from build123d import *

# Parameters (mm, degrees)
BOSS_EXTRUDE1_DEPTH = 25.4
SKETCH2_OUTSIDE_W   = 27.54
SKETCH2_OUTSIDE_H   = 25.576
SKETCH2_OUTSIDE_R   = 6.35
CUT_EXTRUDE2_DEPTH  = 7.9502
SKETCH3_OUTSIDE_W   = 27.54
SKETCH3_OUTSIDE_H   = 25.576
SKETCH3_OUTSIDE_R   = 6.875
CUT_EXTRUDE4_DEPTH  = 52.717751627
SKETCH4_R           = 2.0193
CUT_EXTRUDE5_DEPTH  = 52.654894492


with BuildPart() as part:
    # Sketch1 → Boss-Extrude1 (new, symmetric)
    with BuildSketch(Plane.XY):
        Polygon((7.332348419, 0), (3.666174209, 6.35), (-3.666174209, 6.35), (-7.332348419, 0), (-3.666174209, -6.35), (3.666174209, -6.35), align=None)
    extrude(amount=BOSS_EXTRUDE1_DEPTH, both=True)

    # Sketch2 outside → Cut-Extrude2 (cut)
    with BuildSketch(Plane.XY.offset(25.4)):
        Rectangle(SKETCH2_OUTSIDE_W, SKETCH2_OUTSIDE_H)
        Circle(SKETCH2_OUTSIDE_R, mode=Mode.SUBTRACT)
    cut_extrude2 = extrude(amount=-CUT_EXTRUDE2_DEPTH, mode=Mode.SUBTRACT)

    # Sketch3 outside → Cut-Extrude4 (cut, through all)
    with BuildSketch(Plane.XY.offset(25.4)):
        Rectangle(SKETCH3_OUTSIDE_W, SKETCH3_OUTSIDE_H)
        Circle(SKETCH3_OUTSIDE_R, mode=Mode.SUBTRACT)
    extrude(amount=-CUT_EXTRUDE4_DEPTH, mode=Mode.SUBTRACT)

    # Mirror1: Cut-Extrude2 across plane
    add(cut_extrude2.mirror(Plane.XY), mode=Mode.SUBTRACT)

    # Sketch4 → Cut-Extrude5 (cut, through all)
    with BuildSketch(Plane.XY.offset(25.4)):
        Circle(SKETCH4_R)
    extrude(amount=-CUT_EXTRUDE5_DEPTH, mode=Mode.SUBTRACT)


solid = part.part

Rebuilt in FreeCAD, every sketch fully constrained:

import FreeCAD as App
import Part
import Sketcher

V = App.Vector
Q = App.Units.Quantity

doc = App.newDocument("Part")
body = doc.addObject("PartDesign::Body", "Body")

# Sketch on XY plane
sketch1 = body.newObject("Sketcher::SketchObject", "Sketch")
sketch1.AttachmentSupport = (doc.getObject("XY_Plane"), [""])
sketch1.MapMode = "FlatFace"
sketch1.addGeometry([
    Part.LineSegment(V(7.332348, 0, 0), V(3.666174, 6.35, 0)),  # 0
    Part.LineSegment(V(3.666174, 6.35, 0), V(-3.666174, 6.35, 0)),  # 1
    Part.LineSegment(V(-3.666174, 6.35, 0), V(-7.332348, 0, 0)),  # 2
    Part.LineSegment(V(-7.332348, 0, 0), V(-3.666174, -6.35, 0)),  # 3
    Part.LineSegment(V(-3.666174, -6.35, 0), V(3.666174, -6.35, 0)),  # 4
    Part.LineSegment(V(3.666174, -6.35, 0), V(7.332348, 0, 0)),  # 5
], False)
sketch1.addConstraint([
    Sketcher.Constraint("Coincident", 0, 2, 1, 1),
    Sketcher.Constraint("Coincident", 1, 2, 2, 1),
    Sketcher.Constraint("Coincident", 2, 2, 3, 1),
    Sketcher.Constraint("Coincident", 3, 2, 4, 1),
    Sketcher.Constraint("Coincident", 4, 2, 5, 1),
    Sketcher.Constraint("Coincident", 5, 2, 0, 1),
    Sketcher.Constraint("Horizontal", 1),
    Sketcher.Constraint("Horizontal", 4),
    Sketcher.Constraint("Symmetric", 0, 2, 3, 2, -1, 1),
    Sketcher.Constraint("Symmetric", 2, 2, 5, 2, -1, 1),
    Sketcher.Constraint("PointOnObject", 2, 2, -1),
    Sketcher.Constraint("Parallel", 2, 5),
    Sketcher.Constraint("Vertical", 1, 2, 3, 2),
    Sketcher.Constraint("Angle", 0, Q("120 deg")),
    Sketcher.Constraint("DistanceY", 3, 2, 1, 2, Q("0.5 in")),
    Sketcher.Constraint("DistanceX", 1, 2, 1, 1, 7.332348),
])
pad1 = body.newObject("PartDesign::Pad", "Pad")
pad1.Profile = sketch1
pad1.Length = Q("2 in")
pad1.Midplane = True

# Sketch on XY plane
sketch2 = body.newObject("Sketcher::SketchObject", "Sketch001")
sketch2.AttachmentSupport = (doc.getObject("XY_Plane"), [""])
sketch2.MapMode = "FlatFace"
sketch2.AttachmentOffset = App.Placement(V(0, 0, 1 * 25.4), App.Rotation())
sketch2.addGeometry([
    Part.LineSegment(V(-13.77, 12.788, 0), V(-13.77, -12.788, 0)),  # 0
    Part.LineSegment(V(-13.77, -12.788, 0), V(13.77, -12.788, 0)),  # 1
    Part.LineSegment(V(13.77, -12.788, 0), V(13.77, 12.788, 0)),  # 2
    Part.LineSegment(V(13.77, 12.788, 0), V(-13.77, 12.788, 0)),  # 3
    Part.Circle(V(0, 0, 0), V(0, 0, 1), 6.35),  # 4
], False)
sketch2.addConstraint([
    Sketcher.Constraint("Coincident", 0, 2, 1, 1),
    Sketcher.Constraint("Coincident", 1, 2, 2, 1),
    Sketcher.Constraint("Coincident", 2, 2, 3, 1),
    Sketcher.Constraint("Coincident", 3, 2, 0, 1),
    Sketcher.Constraint("Vertical", 0),
    Sketcher.Constraint("Horizontal", 1),
    Sketcher.Constraint("Vertical", 2),
    Sketcher.Constraint("Horizontal", 3),
    Sketcher.Constraint("Coincident", 4, 3, -1, 1),
    Sketcher.Constraint("Symmetric", 0, 2, 2, 2, -1, 1),
    Sketcher.Constraint("Diameter", 4, Q("0.5 in")),
    Sketcher.Constraint("DistanceX", 1, 1, 1, 2, 27.54),
    Sketcher.Constraint("DistanceY", 0, 2, 0, 1, 25.576),
])
pocket1 = body.newObject("PartDesign::Pocket", "Pocket")
pocket1.Profile = sketch2
pocket1.Length = Q("0.313 in")

# Sketch on XY plane
sketch3 = body.newObject("Sketcher::SketchObject", "Sketch002")
sketch3.AttachmentSupport = (doc.getObject("XY_Plane"), [""])
sketch3.MapMode = "FlatFace"
sketch3.AttachmentOffset = App.Placement(V(0, 0, 1 * 25.4), App.Rotation())
sketch3.addGeometry([
    Part.LineSegment(V(-13.77, 12.788, 0), V(-13.77, -12.788, 0)),  # 0
    Part.LineSegment(V(-13.77, -12.788, 0), V(13.77, -12.788, 0)),  # 1
    Part.LineSegment(V(13.77, -12.788, 0), V(13.77, 12.788, 0)),  # 2
    Part.LineSegment(V(13.77, 12.788, 0), V(-13.77, 12.788, 0)),  # 3
    Part.Circle(V(0, 0, 0), V(0, 0, 1), 6.875),  # 4
], False)
sketch3.addConstraint([
    Sketcher.Constraint("Coincident", 0, 2, 1, 1),
    Sketcher.Constraint("Coincident", 1, 2, 2, 1),
    Sketcher.Constraint("Coincident", 2, 2, 3, 1),
    Sketcher.Constraint("Coincident", 3, 2, 0, 1),
    Sketcher.Constraint("Vertical", 0),
    Sketcher.Constraint("Horizontal", 1),
    Sketcher.Constraint("Vertical", 2),
    Sketcher.Constraint("Horizontal", 3),
    Sketcher.Constraint("Coincident", 4, 3, -1, 1),
    Sketcher.Constraint("Symmetric", 0, 2, 2, 2, -1, 1),
    Sketcher.Constraint("Diameter", 4, 13.75),
    Sketcher.Constraint("DistanceX", 1, 1, 1, 2, 27.54),
    Sketcher.Constraint("DistanceY", 0, 2, 0, 1, 25.576),
])
pocket2 = body.newObject("PartDesign::Pocket", "Pocket001")
pocket2.Profile = sketch3
pocket2.Type = "ThroughAll"
doc.recompute()

mirrored = body.newObject("PartDesign::Mirrored", "Mirrored")
mirrored.Originals = [pocket1]
mirrored.MirrorPlane = (doc.getObject("XY_Plane"), [""])
body.Tip = mirrored

# Sketch on XY plane
sketch4 = body.newObject("Sketcher::SketchObject", "Sketch003")
sketch4.AttachmentSupport = (doc.getObject("XY_Plane"), [""])
sketch4.MapMode = "FlatFace"
sketch4.AttachmentOffset = App.Placement(V(0, 0, 1 * 25.4), App.Rotation())
sketch4.addGeometry(Part.Circle(V(0, 0, 0), V(0, 0, 1), 2.0193), False)
sketch4.addConstraint([
    Sketcher.Constraint("Coincident", 0, 3, -1, 1),
    Sketcher.Constraint("Diameter", 0, Q("0.159 in")),
])
pocket3 = body.newObject("PartDesign::Pocket", "Pocket002")
pocket3.Profile = sketch4
pocket3.Type = "ThroughAll"

doc.recompute()
